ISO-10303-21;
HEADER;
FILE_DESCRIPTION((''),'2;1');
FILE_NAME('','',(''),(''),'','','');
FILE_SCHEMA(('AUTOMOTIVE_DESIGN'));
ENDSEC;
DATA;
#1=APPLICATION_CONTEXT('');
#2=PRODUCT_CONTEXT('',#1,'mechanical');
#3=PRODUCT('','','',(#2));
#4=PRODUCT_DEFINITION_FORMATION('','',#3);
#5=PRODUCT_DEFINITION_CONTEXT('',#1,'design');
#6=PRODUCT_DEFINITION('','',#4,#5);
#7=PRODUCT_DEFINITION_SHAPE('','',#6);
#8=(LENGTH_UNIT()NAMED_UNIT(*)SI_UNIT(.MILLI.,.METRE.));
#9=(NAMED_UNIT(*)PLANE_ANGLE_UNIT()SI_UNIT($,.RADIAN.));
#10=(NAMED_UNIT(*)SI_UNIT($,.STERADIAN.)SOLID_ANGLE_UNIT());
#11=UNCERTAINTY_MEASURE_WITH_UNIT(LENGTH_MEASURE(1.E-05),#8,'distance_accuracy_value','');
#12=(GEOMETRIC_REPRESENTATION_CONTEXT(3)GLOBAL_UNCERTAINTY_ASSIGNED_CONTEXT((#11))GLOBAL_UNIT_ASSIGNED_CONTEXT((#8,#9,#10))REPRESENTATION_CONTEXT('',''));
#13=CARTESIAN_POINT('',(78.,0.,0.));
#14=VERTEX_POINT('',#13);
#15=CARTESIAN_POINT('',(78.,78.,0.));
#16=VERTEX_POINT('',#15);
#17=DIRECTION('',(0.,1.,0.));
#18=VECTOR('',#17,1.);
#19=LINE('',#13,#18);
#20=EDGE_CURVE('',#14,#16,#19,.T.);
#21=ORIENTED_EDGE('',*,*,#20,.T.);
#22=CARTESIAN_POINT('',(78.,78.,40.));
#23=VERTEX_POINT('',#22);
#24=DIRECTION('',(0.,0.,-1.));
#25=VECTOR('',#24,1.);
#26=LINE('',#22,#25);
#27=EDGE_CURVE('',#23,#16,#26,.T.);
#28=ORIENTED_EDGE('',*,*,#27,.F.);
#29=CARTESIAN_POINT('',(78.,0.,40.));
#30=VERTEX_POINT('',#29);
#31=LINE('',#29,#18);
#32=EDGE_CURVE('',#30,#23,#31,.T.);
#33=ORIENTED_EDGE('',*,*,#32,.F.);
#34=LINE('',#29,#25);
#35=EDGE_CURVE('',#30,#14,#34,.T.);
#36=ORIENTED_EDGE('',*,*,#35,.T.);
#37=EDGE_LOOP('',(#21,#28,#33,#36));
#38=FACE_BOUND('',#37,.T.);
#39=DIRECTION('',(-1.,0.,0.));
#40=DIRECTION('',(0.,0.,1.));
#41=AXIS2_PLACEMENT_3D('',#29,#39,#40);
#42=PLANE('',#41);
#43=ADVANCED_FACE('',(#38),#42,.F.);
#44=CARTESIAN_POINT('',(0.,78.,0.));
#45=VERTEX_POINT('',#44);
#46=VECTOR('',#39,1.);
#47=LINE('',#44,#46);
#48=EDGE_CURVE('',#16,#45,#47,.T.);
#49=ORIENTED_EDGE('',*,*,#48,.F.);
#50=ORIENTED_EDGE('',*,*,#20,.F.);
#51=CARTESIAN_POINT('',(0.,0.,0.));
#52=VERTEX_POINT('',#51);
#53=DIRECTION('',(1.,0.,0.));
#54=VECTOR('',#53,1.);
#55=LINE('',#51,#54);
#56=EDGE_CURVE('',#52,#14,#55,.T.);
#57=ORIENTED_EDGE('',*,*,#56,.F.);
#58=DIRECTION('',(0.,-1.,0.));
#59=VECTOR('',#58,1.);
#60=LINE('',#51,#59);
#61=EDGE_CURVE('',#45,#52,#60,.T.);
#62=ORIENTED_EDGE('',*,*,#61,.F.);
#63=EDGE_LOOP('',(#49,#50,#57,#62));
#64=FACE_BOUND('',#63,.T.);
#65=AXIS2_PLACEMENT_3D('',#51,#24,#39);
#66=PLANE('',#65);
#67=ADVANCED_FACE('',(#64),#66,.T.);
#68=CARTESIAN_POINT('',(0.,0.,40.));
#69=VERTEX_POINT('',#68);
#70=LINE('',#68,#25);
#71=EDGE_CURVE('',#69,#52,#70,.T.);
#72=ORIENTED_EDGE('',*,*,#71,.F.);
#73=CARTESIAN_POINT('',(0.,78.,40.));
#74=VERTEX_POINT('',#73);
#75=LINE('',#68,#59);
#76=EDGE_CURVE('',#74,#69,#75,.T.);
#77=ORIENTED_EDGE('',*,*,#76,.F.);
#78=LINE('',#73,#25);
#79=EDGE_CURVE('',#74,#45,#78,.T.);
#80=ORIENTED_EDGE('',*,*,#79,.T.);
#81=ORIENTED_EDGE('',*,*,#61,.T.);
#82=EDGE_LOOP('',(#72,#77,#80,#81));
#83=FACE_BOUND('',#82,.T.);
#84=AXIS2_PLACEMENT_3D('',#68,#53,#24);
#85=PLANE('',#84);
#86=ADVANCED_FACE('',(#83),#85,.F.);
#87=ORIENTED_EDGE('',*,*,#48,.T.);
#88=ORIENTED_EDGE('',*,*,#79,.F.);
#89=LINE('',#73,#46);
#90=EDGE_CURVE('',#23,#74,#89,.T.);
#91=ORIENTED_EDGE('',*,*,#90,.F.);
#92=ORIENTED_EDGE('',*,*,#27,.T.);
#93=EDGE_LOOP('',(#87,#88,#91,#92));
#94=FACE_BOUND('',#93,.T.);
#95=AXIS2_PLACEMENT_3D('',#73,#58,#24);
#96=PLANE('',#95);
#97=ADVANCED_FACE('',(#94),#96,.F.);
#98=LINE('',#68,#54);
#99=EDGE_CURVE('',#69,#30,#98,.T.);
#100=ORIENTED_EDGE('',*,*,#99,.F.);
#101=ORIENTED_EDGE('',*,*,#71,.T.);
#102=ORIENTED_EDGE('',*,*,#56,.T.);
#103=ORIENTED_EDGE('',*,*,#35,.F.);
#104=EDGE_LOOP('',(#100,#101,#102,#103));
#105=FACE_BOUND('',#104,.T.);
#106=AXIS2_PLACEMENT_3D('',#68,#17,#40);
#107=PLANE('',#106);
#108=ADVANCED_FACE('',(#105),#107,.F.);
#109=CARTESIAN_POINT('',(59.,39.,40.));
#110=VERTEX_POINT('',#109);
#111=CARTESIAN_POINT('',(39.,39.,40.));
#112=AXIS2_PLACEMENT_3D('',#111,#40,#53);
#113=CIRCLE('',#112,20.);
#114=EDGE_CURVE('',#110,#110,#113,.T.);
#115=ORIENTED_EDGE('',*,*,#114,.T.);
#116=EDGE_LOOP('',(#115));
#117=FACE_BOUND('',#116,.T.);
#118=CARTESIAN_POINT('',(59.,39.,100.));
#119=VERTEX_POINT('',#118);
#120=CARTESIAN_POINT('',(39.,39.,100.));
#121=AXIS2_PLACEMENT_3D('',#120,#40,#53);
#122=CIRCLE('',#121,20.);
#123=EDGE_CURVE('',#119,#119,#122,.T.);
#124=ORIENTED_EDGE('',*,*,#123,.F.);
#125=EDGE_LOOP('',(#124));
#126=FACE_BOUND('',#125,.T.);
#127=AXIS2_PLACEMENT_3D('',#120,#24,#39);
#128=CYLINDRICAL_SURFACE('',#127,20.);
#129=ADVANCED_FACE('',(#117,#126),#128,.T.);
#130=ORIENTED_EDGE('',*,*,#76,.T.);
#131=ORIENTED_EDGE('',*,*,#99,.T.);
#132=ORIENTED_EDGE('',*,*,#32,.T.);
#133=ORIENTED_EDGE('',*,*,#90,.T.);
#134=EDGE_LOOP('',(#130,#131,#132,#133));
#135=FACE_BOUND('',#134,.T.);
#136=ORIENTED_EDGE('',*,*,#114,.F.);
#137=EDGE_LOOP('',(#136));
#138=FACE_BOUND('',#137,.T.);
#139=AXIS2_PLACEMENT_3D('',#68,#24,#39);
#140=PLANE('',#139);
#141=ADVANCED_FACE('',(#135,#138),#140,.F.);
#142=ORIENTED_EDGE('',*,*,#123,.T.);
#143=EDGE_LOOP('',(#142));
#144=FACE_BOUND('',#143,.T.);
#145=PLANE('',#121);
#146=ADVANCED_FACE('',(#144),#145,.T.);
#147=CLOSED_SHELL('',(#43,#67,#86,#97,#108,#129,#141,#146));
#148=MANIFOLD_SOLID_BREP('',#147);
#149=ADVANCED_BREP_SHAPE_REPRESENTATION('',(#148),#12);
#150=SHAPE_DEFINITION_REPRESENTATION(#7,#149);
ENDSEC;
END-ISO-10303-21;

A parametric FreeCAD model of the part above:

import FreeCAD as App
import Part
import Sketcher

V = App.Vector
Q = App.Units.Quantity


def add_polygon(sketch, points):
    """Adds a closed chain of lines whose ends are joined by coincident constraints."""
    first, n = sketch.GeometryCount, len(points)
    for a, b in zip(points, points[1:] + points[:1]):
        sketch.addGeometry(Part.LineSegment(App.Vector(*a, 0), App.Vector(*b, 0)), False)
    for i in range(n):
        sketch.addConstraint(Sketcher.Constraint("Coincident", first + i, 2, first + (i + 1) % n, 1))

doc = App.newDocument("Part")
params = doc.addObject("Spreadsheet::Sheet", "Params")
for row, (alias, value) in enumerate([
    ("sketch1_width", "78 mm"),
    ("pad1_length", "40 mm"),
    ("sketch2_diameter", "40 mm"),
    ("pad2_length", "60 mm"),
], start=1):
    params.set(f"A{row}", alias)
    params.set(f"B{row}", "=" + value)
    params.setAlias(f"B{row}", alias)

body = doc.addObject("PartDesign::Body", "Body")

# Sketch on XY plane
sketch1 = body.newObject("Sketcher::SketchObject", "Sketch")
sketch1.AttachmentSupport = (doc.getObject("XY_Plane"), [""])
sketch1.MapMode = "FlatFace"
add_polygon(sketch1, [(0, 78), (0, 0), (78, 0), (78, 78)])  # lines 0-3
sketch1.addConstraint(Sketcher.Constraint("Vertical", 0))
sketch1.addConstraint(Sketcher.Constraint("Horizontal", 1))
sketch1.addConstraint(Sketcher.Constraint("Vertical", 2))
sketch1.addConstraint(Sketcher.Constraint("Horizontal", 3))
sketch1.addConstraint(Sketcher.Constraint("Coincident", 0, 2, -1, 1))
sketch1.addConstraint(Sketcher.Constraint("Equal", 3, 0))
sketch1.addConstraint(Sketcher.Constraint("DistanceX", 1, 1, 1, 2, Q("78 mm")))
sketch1.setExpression("Constraints[10]", "Params.sketch1_width")
pad1 = body.newObject("PartDesign::Pad", "Pad")
pad1.Profile = sketch1
pad1.setExpression("Length", "Params.pad1_length")

# Sketch on XY plane
sketch2 = body.newObject("Sketcher::SketchObject", "Sketch001")
sketch2.AttachmentSupport = (doc.getObject("XY_Plane"), [""])
sketch2.MapMode = "FlatFace"
sketch2.AttachmentOffset = App.Placement(V(0, 0, 40), App.Rotation())
sketch2.addGeometry(Part.Circle(V(39, 39, 0), V(0, 0, 1), 20), False)
sketch2.addConstraint(Sketcher.Constraint("Diameter", 0, Q("40 mm")))
sketch2.addConstraint(Sketcher.Constraint("DistanceX", -1, 1, 0, 3, Q("39 mm")))
sketch2.addConstraint(Sketcher.Constraint("DistanceY", -1, 1, 0, 3, Q("39 mm")))
sketch2.setExpression("Constraints[0]", "Params.sketch2_diameter")
pad2 = body.newObject("PartDesign::Pad", "Pad001")
pad2.Profile = sketch2
pad2.setExpression("Length", "Params.pad2_length")

doc.recompute()
